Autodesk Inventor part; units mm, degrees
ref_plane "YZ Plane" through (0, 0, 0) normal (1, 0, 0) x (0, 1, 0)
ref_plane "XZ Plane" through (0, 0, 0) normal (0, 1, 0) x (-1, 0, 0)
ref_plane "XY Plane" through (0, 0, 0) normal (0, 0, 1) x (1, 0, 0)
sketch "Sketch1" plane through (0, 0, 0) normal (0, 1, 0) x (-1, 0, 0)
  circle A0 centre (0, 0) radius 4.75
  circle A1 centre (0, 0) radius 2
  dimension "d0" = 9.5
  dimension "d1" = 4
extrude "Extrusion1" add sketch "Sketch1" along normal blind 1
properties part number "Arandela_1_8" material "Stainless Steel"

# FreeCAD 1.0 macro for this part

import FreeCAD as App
import Part
import Sketcher
from FreeCAD import Vector

doc = App.newDocument("Part")
body = doc.addObject("PartDesign::Body", "Body")

# Sketch on XZ plane
sketch1 = body.newObject("Sketcher::SketchObject", "Sketch")
sketch1.AttachmentSupport = (doc.getObject("XZ_Plane"), [""])
sketch1.MapMode = "FlatFace"
sketch1.addGeometry(Part.Circle(Vector(0, 0, 0), Vector(0, 0, 1), 4.8), False)
sketch1.addGeometry(Part.Circle(Vector(0, 0, 0), Vector(0, 0, 1), 2), False)
sketch1.addConstraint(Sketcher.Constraint("Coincident", 0, 3, -1, 1))
sketch1.addConstraint(Sketcher.Constraint("Coincident", 1, 3, -1, 1))
sketch1.addConstraint(Sketcher.Constraint("Diameter", 1, 4.0))
sketch1.addConstraint(Sketcher.Constraint("Diameter", 0, 9.5))
pad1 = body.newObject("PartDesign::Pad", "Pad")
pad1.Profile = sketch1
pad1.Length = 1
pad1.Reversed = True

doc.recompute()
